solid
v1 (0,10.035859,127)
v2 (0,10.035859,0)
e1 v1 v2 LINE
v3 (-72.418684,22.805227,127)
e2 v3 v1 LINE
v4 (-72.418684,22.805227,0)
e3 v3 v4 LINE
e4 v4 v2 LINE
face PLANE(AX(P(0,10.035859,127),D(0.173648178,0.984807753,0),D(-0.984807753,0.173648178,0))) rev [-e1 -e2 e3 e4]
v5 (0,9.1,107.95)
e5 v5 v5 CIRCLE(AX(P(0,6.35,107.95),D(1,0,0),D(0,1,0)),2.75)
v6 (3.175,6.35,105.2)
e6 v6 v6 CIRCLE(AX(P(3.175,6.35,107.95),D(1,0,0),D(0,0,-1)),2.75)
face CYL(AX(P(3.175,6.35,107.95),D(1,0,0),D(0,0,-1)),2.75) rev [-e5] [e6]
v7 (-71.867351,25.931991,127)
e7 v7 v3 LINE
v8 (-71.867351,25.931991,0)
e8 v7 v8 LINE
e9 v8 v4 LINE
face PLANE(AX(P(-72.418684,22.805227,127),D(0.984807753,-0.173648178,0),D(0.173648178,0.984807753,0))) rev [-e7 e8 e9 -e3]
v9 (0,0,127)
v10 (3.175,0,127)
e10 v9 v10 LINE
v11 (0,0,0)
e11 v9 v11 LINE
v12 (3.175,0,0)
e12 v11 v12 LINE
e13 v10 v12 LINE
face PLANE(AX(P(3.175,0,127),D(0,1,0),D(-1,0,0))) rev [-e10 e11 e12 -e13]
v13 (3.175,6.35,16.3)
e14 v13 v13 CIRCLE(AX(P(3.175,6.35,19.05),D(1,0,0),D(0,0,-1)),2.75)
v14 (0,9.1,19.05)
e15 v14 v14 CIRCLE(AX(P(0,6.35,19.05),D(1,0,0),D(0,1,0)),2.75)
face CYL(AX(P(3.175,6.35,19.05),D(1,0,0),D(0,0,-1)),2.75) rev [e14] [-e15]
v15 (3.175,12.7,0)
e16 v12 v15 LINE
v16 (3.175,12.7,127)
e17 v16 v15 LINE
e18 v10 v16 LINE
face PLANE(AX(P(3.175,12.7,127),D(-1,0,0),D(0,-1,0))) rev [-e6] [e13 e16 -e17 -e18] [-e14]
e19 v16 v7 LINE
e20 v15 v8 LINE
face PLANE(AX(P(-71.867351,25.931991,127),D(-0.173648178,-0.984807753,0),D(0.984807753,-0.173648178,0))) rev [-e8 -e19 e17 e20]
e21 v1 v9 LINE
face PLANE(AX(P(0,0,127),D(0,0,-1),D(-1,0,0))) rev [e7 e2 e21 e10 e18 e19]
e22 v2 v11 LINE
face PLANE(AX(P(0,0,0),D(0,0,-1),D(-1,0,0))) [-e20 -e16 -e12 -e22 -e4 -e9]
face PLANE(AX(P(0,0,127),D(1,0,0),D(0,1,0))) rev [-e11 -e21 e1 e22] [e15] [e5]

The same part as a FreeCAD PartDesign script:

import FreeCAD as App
import Part
import Sketcher

V = App.Vector
Q = App.Units.Quantity


def add_polygon(sketch, points):
    """Adds a closed chain of lines whose ends are joined by coincident constraints."""
    first, n = sketch.GeometryCount, len(points)
    for a, b in zip(points, points[1:] + points[:1]):
        sketch.addGeometry(Part.LineSegment(App.Vector(*a, 0), App.Vector(*b, 0)), False)
    for i in range(n):
        sketch.addConstraint(Sketcher.Constraint("Coincident", first + i, 2, first + (i + 1) % n, 1))

doc = App.newDocument("Part")
body = doc.addObject("PartDesign::Body", "Body")

sketch1 = body.newObject("Sketcher::SketchObject", "Sketch")
sketch1.AttachmentSupport = (doc.getObject("XY_Plane"), [""])
sketch1.MapMode = "FlatFace"
add_polygon(sketch1, [(0, 10.035859), (0, 0), (3.175, 0), (3.175, 12.7), (-71.867351, 25.931991), (-72.418684, 22.805227)])
sketch1.addConstraint([
    Sketcher.Constraint("Vertical", 0),
    Sketcher.Constraint("Horizontal", 1),
    Sketcher.Constraint("Vertical", 2),
    Sketcher.Constraint("Coincident", 0, 2, -1, 1),
    Sketcher.Constraint("Perpendicular", 3, 4),
    Sketcher.Constraint("Perpendicular", 4, 5),
    Sketcher.Constraint("Distance", 3, Q("3 in")),
    Sketcher.Constraint("DistanceY", 2, 1, 2, 2, Q("0.5 in")),
    Sketcher.Constraint("Angle", 3, Q("170 deg")),
    Sketcher.Constraint("DistanceX", 1, 1, 1, 2, Q("0.125 in")),
    Sketcher.Constraint("Distance", 4, Q("0.125 in")),
])
pad1 = body.newObject("PartDesign::Pad", "Pad")
pad1.Profile = sketch1
pad1.Length = Q("5 in")

sketch2 = body.newObject("Sketcher::SketchObject", "Sketch001")
sketch2.AttachmentSupport = (doc.getObject("YZ_Plane"), [""])
sketch2.MapMode = "FlatFace"
sketch2.AttachmentOffset = App.Placement(V(0, 0, 0.125 * 25.4), App.Rotation())
sketch2.addGeometry([
    Part.Circle(V(6.35, 107.95, 0), V(0, 0, 1), 2.75),
    Part.Circle(V(6.35, 19.05, 0), V(0, 0, 1), 2.75),
], False)
sketch2.addConstraint([
    Sketcher.Constraint("Equal", 0, 1),
    Sketcher.Constraint("Vertical", 0, 3, 1, 3),
    Sketcher.Constraint("DistanceY", 1, 3, 0, 3, Q("3.5 in")),
    Sketcher.Constraint("Diameter", 0, 5.5),
    Sketcher.Constraint("DistanceX", -1, 1, 0, 3, Q("0.25 in")),
    Sketcher.Constraint("DistanceY", -1, 1, 0, 3, Q("4.25 in")),
])
doc.recompute()
hole = body.newObject("PartDesign::Hole", "Hole")
hole.Profile = sketch2
hole.ThreadType = "None"
hole.Diameter = 5.5
hole.DepthType = "ThroughAll"

doc.recompute()
